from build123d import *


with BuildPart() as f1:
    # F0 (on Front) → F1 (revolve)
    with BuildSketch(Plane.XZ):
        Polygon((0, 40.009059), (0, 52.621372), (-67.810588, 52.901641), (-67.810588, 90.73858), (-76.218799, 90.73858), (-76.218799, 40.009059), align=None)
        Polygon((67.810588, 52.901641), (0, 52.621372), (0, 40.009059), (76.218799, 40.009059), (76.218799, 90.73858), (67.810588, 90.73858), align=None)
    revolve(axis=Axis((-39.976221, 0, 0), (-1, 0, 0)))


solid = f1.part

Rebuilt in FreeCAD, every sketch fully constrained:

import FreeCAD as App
import Part
import Sketcher
from FreeCAD import Vector

doc = App.newDocument("Part")
body = doc.addObject("PartDesign::Body", "Body")

# Sketch on XZ plane
sketch1 = body.newObject("Sketcher::SketchObject", "Sketch")
sketch1.AttachmentSupport = (doc.getObject("XZ_Plane"), [""])
sketch1.MapMode = "FlatFace"
sketch1.addGeometry([
    Part.LineSegment(Vector(0, 52.621372, 0), Vector(-67.810588, 52.901641, 0)),  # 0
    Part.LineSegment(Vector(-67.810588, 52.901641, 0), Vector(-67.810588, 90.73858, 0)),  # 1
    Part.LineSegment(Vector(-67.810588, 90.73858, 0), Vector(-76.218799, 90.73858, 0)),  # 2
    Part.LineSegment(Vector(-76.218799, 90.73858, 0), Vector(-76.218799, 40.009059, 0)),  # 3
    Part.LineSegment(Vector(-76.218799, 40.009059, 0), Vector(76.218799, 40.009059, 0)),  # 4
    Part.LineSegment(Vector(76.218799, 40.009059, 0), Vector(76.218799, 90.73858, 0)),  # 5
    Part.LineSegment(Vector(76.218799, 90.73858, 0), Vector(67.810588, 90.73858, 0)),  # 6
    Part.LineSegment(Vector(67.810588, 90.73858, 0), Vector(67.810588, 52.901641, 0)),  # 7
    Part.LineSegment(Vector(67.810588, 52.901641, 0), Vector(0, 52.621372, 0)),  # 8
], False)
sketch1.addConstraint([
    Sketcher.Constraint("Coincident", 0, 2, 1, 1),
    Sketcher.Constraint("Coincident", 1, 2, 2, 1),
    Sketcher.Constraint("Coincident", 2, 2, 3, 1),
    Sketcher.Constraint("Coincident", 3, 2, 4, 1),
    Sketcher.Constraint("Coincident", 4, 2, 5, 1),
    Sketcher.Constraint("Coincident", 5, 2, 6, 1),
    Sketcher.Constraint("Coincident", 6, 2, 7, 1),
    Sketcher.Constraint("Coincident", 7, 2, 8, 1),
    Sketcher.Constraint("Coincident", 8, 2, 0, 1),
    Sketcher.Constraint("Vertical", 1),
    Sketcher.Constraint("Horizontal", 2),
    Sketcher.Constraint("Vertical", 3),
    Sketcher.Constraint("Horizontal", 4),
    Sketcher.Constraint("Vertical", 5),
    Sketcher.Constraint("Horizontal", 6),
    Sketcher.Constraint("Vertical", 7),
    Sketcher.Constraint("Symmetric", 2, 2, 5, 2, -2),
    Sketcher.Constraint("Symmetric", 0, 2, 7, 2, -2),
    Sketcher.Constraint("PointOnObject", 8, 2, -2),
    Sketcher.Constraint("DistanceX", 4, 1, 4, 2, 152.437598),
    Sketcher.Constraint("DistanceX", 2, 2, 2, 1, 8.408211),
    Sketcher.Constraint("DistanceY", 1, 1, 1, 2, 37.836939),
    Sketcher.Constraint("DistanceY", 3, 2, 3, 1, 50.729521),
    Sketcher.Constraint("DistanceY", -1, 1, 0, 2, 52.901641),
    Sketcher.Constraint("DistanceY", 8, 2, 0, 2, 0.280269),
])
revolution = body.newObject("PartDesign::Revolution", "Revolution")
revolution.Profile = sketch1
revolution.ReferenceAxis = (sketch1, ["H_Axis"])
revolution.Angle = 360

doc.recompute()
